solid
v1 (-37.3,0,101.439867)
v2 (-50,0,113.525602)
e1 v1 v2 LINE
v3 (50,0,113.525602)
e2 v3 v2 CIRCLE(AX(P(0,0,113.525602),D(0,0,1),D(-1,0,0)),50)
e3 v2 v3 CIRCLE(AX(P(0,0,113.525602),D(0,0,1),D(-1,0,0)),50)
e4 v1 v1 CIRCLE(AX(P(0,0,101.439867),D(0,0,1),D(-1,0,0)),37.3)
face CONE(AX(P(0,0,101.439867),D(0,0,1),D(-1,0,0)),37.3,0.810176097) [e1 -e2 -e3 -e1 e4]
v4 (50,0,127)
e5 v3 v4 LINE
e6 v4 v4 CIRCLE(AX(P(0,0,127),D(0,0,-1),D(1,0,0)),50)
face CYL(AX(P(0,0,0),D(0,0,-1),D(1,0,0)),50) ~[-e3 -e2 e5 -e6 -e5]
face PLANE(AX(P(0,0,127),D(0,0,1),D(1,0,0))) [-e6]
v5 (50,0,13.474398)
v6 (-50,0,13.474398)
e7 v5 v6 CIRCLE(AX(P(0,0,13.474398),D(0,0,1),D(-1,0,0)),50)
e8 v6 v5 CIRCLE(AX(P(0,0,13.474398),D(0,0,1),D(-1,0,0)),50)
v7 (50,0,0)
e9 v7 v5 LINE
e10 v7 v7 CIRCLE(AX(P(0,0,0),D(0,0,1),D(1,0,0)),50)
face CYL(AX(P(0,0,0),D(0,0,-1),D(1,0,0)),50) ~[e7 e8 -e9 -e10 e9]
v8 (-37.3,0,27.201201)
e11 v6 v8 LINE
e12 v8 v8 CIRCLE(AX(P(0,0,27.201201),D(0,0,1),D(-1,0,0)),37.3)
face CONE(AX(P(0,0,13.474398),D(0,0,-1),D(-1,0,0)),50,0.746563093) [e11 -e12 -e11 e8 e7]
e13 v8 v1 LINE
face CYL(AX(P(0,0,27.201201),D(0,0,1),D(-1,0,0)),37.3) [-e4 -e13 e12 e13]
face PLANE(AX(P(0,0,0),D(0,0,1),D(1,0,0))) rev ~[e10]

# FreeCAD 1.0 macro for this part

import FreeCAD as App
import Part
import Sketcher

V = App.Vector

doc = App.newDocument("Part")
body = doc.addObject("PartDesign::Body", "Body")

# Sketch on XY plane
sketch1 = body.newObject("Sketcher::SketchObject", "Sketch")
sketch1.AttachmentSupport = (doc.getObject("XY_Plane"), [""])
sketch1.MapMode = "FlatFace"
sketch1.addGeometry(Part.Circle(V(0, 0, 0), V(0, 0, 1), 50), False)
sketch1.addConstraint(Sketcher.Constraint("Coincident", 0, 3, -1, 1))
sketch1.addConstraint(Sketcher.Constraint("Diameter", 0, 100.0))
pad1 = body.newObject("PartDesign::Pad", "Pad")
pad1.Profile = sketch1
pad1.Length = 127

# Sketch on XZ plane
sketch2 = body.newObject("Sketcher::SketchObject", "Sketch001")
sketch2.AttachmentSupport = (doc.getObject("XZ_Plane"), [""])
sketch2.MapMode = "FlatFace"
sketch2.addGeometry(Part.LineSegment(V(-50, 113.525602, 0), V(-50, 127, 0)), False)
sketch2.addGeometry(Part.LineSegment(V(-50, 127, 0), V(-84.931674, 127, 0)), False)
sketch2.addGeometry(Part.LineSegment(V(-84.931674, 127, 0), V(-84.931674, 0, 0)), False)
sketch2.addGeometry(Part.LineSegment(V(-84.931674, 0, 0), V(-50, 0, 0)), False)
sketch2.addGeometry(Part.LineSegment(V(-50, 0, 0), V(-50, 13.474398, 0)), False)
sketch2.addGeometry(Part.LineSegment(V(-50, 13.474398, 0), V(-37.3, 27.201201, 0)), False)
sketch2.addGeometry(Part.LineSegment(V(-37.3, 27.201201, 0), V(-37.3, 101.439867, 0)), False)
sketch2.addGeometry(Part.LineSegment(V(-37.3, 101.439867, 0), V(-50, 113.525602, 0)), False)
sketch2.addConstraint(Sketcher.Constraint("Coincident", 0, 2, 1, 1))
sketch2.addConstraint(Sketcher.Constraint("Coincident", 1, 2, 2, 1))
sketch2.addConstraint(Sketcher.Constraint("Coincident", 2, 2, 3, 1))
sketch2.addConstraint(Sketcher.Constraint("Coincident", 3, 2, 4, 1))
sketch2.addConstraint(Sketcher.Constraint("Coincident", 4, 2, 5, 1))
sketch2.addConstraint(Sketcher.Constraint("Coincident", 5, 2, 6, 1))
sketch2.addConstraint(Sketcher.Constraint("Coincident", 6, 2, 7, 1))
sketch2.addConstraint(Sketcher.Constraint("Coincident", 7, 2, 0, 1))
sketch2.addConstraint(Sketcher.Constraint("Vertical", 0))
sketch2.addConstraint(Sketcher.Constraint("Horizontal", 1))
sketch2.addConstraint(Sketcher.Constraint("Vertical", 2))
sketch2.addConstraint(Sketcher.Constraint("Horizontal", 3))
sketch2.addConstraint(Sketcher.Constraint("Vertical", 4))
sketch2.addConstraint(Sketcher.Constraint("Vertical", 6))
sketch2.addConstraint(Sketcher.Constraint("PointOnObject", 2, 2, -1))
sketch2.addConstraint(Sketcher.Constraint("Vertical", 0, 2, 3, 2))
sketch2.addConstraint(Sketcher.Constraint("Equal", 0, 4))
sketch2.addConstraint(Sketcher.Constraint("DistanceY", 2, 2, 2, 1, 127.0))
sketch2.addConstraint(Sketcher.Constraint("DistanceX", 0, 2, -1, 1, 50.0))
sketch2.addConstraint(Sketcher.Constraint("DistanceX", 5, 2, -1, 1, 37.3))
sketch2.addConstraint(Sketcher.Constraint("DistanceY", 4, 1, 4, 2, 13.474398))
sketch2.addConstraint(Sketcher.Constraint("DistanceY", -1, 1, 5, 2, 27.201201))
sketch2.addConstraint(Sketcher.Constraint("DistanceX", 1, 2, 1, 1, 34.931674))
sketch2.addConstraint(Sketcher.Constraint("DistanceY", 6, 1, 6, 2, 74.238666))
groove = body.newObject("PartDesign::Groove", "Groove")
groove.Profile = sketch2
groove.ReferenceAxis = (sketch2, ["V_Axis"])
groove.Angle = 360

doc.recompute()
